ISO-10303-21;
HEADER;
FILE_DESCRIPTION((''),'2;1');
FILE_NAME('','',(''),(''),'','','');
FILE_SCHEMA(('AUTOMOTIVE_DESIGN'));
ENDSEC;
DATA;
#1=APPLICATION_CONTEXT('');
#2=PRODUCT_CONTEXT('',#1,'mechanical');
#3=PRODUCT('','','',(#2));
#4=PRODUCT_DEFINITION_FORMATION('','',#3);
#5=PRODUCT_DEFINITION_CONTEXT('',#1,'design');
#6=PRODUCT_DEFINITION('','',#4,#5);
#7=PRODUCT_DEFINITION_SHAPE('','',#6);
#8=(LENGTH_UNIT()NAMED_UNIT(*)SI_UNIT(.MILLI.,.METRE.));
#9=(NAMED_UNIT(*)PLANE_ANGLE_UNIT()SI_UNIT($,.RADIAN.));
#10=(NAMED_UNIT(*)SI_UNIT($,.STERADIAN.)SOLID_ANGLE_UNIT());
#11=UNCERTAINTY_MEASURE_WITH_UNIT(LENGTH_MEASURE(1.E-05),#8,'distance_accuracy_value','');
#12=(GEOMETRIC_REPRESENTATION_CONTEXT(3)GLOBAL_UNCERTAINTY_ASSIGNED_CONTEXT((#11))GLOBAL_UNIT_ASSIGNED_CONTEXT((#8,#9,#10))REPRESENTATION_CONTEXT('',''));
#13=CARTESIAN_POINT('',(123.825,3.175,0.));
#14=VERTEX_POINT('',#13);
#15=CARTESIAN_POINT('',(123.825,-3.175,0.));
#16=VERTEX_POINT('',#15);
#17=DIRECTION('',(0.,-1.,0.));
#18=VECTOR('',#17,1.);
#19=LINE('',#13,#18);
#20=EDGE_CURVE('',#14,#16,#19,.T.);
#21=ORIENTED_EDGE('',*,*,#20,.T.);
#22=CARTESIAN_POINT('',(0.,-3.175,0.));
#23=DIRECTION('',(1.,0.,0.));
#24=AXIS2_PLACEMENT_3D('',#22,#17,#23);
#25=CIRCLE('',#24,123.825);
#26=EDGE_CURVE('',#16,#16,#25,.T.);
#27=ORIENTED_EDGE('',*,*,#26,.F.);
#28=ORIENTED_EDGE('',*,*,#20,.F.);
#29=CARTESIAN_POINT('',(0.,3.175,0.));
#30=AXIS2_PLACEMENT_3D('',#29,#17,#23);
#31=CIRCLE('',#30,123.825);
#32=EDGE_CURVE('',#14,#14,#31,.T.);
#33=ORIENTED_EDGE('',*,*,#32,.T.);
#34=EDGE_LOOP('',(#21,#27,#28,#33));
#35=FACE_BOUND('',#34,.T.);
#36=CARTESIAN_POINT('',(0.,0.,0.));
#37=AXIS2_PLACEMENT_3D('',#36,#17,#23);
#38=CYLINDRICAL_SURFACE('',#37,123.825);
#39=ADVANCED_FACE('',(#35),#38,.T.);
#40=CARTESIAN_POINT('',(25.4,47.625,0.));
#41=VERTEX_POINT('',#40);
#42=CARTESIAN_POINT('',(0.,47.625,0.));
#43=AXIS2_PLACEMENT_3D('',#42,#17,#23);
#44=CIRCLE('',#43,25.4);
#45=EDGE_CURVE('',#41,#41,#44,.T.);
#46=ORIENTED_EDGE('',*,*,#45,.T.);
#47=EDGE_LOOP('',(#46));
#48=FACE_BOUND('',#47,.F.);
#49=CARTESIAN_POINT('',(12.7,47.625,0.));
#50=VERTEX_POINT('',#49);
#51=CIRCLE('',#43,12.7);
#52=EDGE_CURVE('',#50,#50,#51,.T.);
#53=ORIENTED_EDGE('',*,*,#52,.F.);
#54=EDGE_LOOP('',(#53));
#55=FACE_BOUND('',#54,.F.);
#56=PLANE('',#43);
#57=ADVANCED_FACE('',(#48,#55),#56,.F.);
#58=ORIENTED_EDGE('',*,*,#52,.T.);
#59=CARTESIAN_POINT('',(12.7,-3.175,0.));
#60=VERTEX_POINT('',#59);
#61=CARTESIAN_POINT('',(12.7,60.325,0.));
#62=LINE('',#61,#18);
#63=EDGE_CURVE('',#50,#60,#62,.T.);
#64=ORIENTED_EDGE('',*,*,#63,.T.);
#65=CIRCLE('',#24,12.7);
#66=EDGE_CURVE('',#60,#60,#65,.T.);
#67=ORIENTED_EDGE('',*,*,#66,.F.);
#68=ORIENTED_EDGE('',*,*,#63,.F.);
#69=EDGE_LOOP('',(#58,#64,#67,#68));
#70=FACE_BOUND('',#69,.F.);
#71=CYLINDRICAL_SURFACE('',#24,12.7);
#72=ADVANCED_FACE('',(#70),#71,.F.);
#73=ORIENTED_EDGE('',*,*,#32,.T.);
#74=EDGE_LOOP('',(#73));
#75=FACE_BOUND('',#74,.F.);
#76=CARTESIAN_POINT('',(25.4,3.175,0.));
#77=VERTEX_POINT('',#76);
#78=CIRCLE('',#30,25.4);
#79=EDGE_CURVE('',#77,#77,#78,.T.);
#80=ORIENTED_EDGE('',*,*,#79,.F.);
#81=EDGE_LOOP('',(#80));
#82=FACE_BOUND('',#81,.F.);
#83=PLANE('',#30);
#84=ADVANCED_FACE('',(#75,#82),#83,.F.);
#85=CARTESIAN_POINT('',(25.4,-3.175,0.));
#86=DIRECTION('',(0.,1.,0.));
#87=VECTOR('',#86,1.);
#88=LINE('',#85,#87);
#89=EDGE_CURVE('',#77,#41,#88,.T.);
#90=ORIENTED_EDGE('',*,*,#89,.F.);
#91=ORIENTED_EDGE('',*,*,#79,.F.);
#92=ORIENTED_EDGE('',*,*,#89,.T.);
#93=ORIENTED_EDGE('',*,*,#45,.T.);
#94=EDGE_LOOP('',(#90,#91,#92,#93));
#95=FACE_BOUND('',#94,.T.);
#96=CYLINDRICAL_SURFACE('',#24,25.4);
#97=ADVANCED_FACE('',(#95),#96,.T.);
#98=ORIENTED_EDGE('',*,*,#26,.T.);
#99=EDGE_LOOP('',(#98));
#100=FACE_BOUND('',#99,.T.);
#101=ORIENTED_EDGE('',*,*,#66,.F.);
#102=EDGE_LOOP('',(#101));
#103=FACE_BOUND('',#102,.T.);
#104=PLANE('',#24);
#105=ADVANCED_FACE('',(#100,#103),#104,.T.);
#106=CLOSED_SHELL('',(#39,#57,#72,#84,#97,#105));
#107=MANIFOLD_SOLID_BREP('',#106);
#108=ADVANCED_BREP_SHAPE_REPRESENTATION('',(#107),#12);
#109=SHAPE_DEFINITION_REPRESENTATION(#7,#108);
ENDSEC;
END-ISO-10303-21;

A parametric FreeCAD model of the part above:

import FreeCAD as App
import Part
import Sketcher
from FreeCAD import Vector
Q = App.Units.Quantity

doc = App.newDocument("Part")
body = doc.addObject("PartDesign::Body", "Body")

sketch1 = body.newObject("Sketcher::SketchObject", "Sketch")
sketch1.AttachmentSupport = (doc.getObject("XZ_Plane"), [""])
sketch1.MapMode = "FlatFace"
sketch1.addGeometry(Part.Circle(Vector(0, 0, 0), Vector(0, 0, 1), 124), False)
sketch1.addConstraint(Sketcher.Constraint("Coincident", 0, 3, -1, 1))
sketch1.addConstraint(Sketcher.Constraint("Diameter", 0, Q("9.75 in")))
pad1 = body.newObject("PartDesign::Pad", "Pad")
pad1.Profile = sketch1
pad1.Length = Q("0.25 in")
pad1.Midplane = True

sketch2 = body.newObject("Sketcher::SketchObject", "Sketch001")
sketch2.AttachmentSupport = (doc.getObject("XZ_Plane"), [""])
sketch2.MapMode = "FlatFace"
sketch2.AttachmentOffset = App.Placement(Vector(0, 0, 0.125 * 25.4), App.Rotation())
sketch2.addGeometry(Part.Circle(Vector(0, 0, 0), Vector(0, 0, 1), 25), False)
sketch2.addConstraint(Sketcher.Constraint("Coincident", 0, 3, -1, 1))
sketch2.addConstraint(Sketcher.Constraint("Diameter", 0, Q("2 in")))
pad2 = body.newObject("PartDesign::Pad", "Pad001")
pad2.Profile = sketch2
pad2.Length = Q("2 in")
pad2.Reversed = True

sketch3 = body.newObject("Sketcher::SketchObject", "Sketch002")
sketch3.AttachmentSupport = (doc.getObject("XZ_Plane"), [""])
sketch3.MapMode = "FlatFace"
sketch3.AttachmentOffset = App.Placement(Vector(0, 0, 0.125 * 25.4), App.Rotation())
sketch3.addGeometry(Part.Circle(Vector(0, 0, 0), Vector(0, 0, 1), 13), False)
sketch3.addConstraint(Sketcher.Constraint("Coincident", 0, 3, -1, 1))
sketch3.addConstraint(Sketcher.Constraint("Diameter", 0, Q("1 in")))
pocket1 = body.newObject("PartDesign::Pocket", "Pocket")
pocket1.Profile = sketch3
pocket1.Length = Q("5 in")
pocket1.Midplane = True

doc.recompute()
